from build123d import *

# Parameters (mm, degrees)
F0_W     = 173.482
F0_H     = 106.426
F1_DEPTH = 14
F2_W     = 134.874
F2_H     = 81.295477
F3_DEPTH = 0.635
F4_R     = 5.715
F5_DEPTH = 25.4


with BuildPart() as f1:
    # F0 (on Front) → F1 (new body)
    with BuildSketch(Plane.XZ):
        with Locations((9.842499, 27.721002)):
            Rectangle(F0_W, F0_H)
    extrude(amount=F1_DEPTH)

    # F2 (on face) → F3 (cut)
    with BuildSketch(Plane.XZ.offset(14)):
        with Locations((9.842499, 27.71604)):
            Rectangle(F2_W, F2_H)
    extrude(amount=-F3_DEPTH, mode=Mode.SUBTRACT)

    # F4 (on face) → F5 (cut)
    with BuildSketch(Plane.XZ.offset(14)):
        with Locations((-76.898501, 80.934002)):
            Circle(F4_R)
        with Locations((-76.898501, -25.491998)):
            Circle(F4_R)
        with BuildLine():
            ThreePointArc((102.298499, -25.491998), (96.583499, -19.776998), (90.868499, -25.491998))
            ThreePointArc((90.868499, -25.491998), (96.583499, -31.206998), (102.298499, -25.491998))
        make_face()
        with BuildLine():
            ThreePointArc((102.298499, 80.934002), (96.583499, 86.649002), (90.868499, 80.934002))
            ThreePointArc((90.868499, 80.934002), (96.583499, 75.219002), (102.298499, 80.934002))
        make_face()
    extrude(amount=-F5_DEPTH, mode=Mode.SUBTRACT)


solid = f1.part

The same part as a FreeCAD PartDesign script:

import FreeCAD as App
import Part
import Sketcher

V = App.Vector
Q = App.Units.Quantity


def add_polygon(sketch, points):
    """Adds a closed chain of lines whose ends are joined by coincident constraints."""
    first, n = sketch.GeometryCount, len(points)
    for a, b in zip(points, points[1:] + points[:1]):
        sketch.addGeometry(Part.LineSegment(App.Vector(*a, 0), App.Vector(*b, 0)), False)
    for i in range(n):
        sketch.addConstraint(Sketcher.Constraint("Coincident", first + i, 2, first + (i + 1) % n, 1))

doc = App.newDocument("Part")
params = doc.addObject("Spreadsheet::Sheet", "Params")
for row, (alias, value) in enumerate([
    ("sketch1_width", "6.83 in"),
    ("sketch1_height", "4.19 in"),
    ("pad1_length", "14 mm"),
    ("sketch2_width", "5.31 in"),
    ("pocket1_length", "0.025 in"),
    ("sketch3_diameter", "0.45 in"),
    ("pocket2_length", "1 in"),
], start=1):
    params.set(f"A{row}", alias)
    params.set(f"B{row}", "=" + value)
    params.setAlias(f"B{row}", alias)

body = doc.addObject("PartDesign::Body", "Body")

sketch1 = doc.addObject("Sketcher::SketchObject", "Sketch")
body.addObject(sketch1)
sketch1.AttachmentSupport = (doc.XZ_Plane, [""])
sketch1.MapMode = "FlatFace"
add_polygon(sketch1, [(-77, 81), (-77, -25), (97, -25), (97, 81)])
sketch1.addConstraint(Sketcher.Constraint("Vertical", 0))
sketch1.addConstraint(Sketcher.Constraint("Horizontal", 1))
sketch1.addConstraint(Sketcher.Constraint("Vertical", 2))
sketch1.addConstraint(Sketcher.Constraint("Horizontal", 3))
sketch1.addConstraint(Sketcher.Constraint("DistanceX", 1, 1, 1, 2, Q("6.83 in")))
sketch1.addConstraint(Sketcher.Constraint("DistanceY", 0, 2, 0, 1, Q("4.19 in")))
sketch1.addConstraint(Sketcher.Constraint("DistanceX", 0, 2, -1, 1, Q("3.0275 in")))
sketch1.addConstraint(Sketcher.Constraint("DistanceY", 0, 2, -1, 1, Q("25.491998 mm")))
sketch1.setExpression("Constraints[8]", "Params.sketch1_width")
sketch1.setExpression("Constraints[9]", "Params.sketch1_height")
pad1 = doc.addObject("PartDesign::Pad", "Pad")
body.addObject(pad1)
pad1.Profile = sketch1
pad1.setExpression("Length", "Params.pad1_length")

sketch2 = doc.addObject("Sketcher::SketchObject", "Sketch001")
body.addObject(sketch2)
sketch2.AttachmentSupport = (doc.XZ_Plane, [""])
sketch2.MapMode = "FlatFace"
sketch2.AttachmentOffset = App.Placement(V(0, 0, 14), App.Rotation())
add_polygon(sketch2, [(-58, 68), (-58, -13), (77, -13), (77, 68)])
sketch2.addConstraint(Sketcher.Constraint("Vertical", 0))
sketch2.addConstraint(Sketcher.Constraint("Horizontal", 1))
sketch2.addConstraint(Sketcher.Constraint("Vertical", 2))
sketch2.addConstraint(Sketcher.Constraint("Horizontal", 3))
sketch2.addConstraint(Sketcher.Constraint("DistanceX", 1, 1, 1, 2, Q("5.31 in")))
sketch2.addConstraint(Sketcher.Constraint("DistanceX", 0, 2, -1, 1, Q("2.2675 in")))
sketch2.addConstraint(Sketcher.Constraint("DistanceY", 0, 2, -1, 1, Q("12.931698 mm")))
sketch2.addConstraint(Sketcher.Constraint("DistanceY", 0, 2, 0, 1, Q("81.295477 mm")))
sketch2.setExpression("Constraints[8]", "Params.sketch2_width")
pocket1 = doc.addObject("PartDesign::Pocket", "Pocket")
body.addObject(pocket1)
pocket1.Profile = sketch2
pocket1.setExpression("Length", "Params.pocket1_length")

sketch3 = doc.addObject("Sketcher::SketchObject", "Sketch002")
body.addObject(sketch3)
sketch3.AttachmentSupport = (doc.XZ_Plane, [""])
sketch3.MapMode = "FlatFace"
sketch3.AttachmentOffset = App.Placement(V(0, 0, 14), App.Rotation())
sketch3.addGeometry(Part.Circle(V(-77, 81, 0), V(0, 0, 1), 6), False)
sketch3.addGeometry(Part.Circle(V(-77, -25, 0), V(0, 0, 1), 6), False)
sketch3.addGeometry(Part.Circle(V(97, -25, 0), V(0, 0, 1), 6), False)
sketch3.addGeometry(Part.Circle(V(97, 81, 0), V(0, 0, 1), 6), False)
sketch3.addConstraint(Sketcher.Constraint("Equal", 0, 1))
sketch3.addConstraint(Sketcher.Constraint("Equal", 1, 2))
sketch3.addConstraint(Sketcher.Constraint("Equal", 2, 3))
sketch3.addConstraint(Sketcher.Constraint("Horizontal", 1, 3, 2, 3))
sketch3.addConstraint(Sketcher.Constraint("Horizontal", 0, 3, 3, 3))
sketch3.addConstraint(Sketcher.Constraint("Vertical", 0, 3, 1, 3))
sketch3.addConstraint(Sketcher.Constraint("Vertical", 2, 3, 3, 3))
sketch3.addConstraint(Sketcher.Constraint("Diameter", 0, Q("0.45 in")))
sketch3.addConstraint(Sketcher.Constraint("DistanceY", 1, 3, 0, 3, Q("4.19 in")))
sketch3.addConstraint(Sketcher.Constraint("DistanceX", 1, 3, 2, 3, Q("6.83 in")))
sketch3.addConstraint(Sketcher.Constraint("DistanceX", 0, 3, -1, 1, Q("3.0275 in")))
sketch3.addConstraint(Sketcher.Constraint("DistanceY", -1, 1, 0, 3, Q("80.934002 mm")))
sketch3.setExpression("Constraints[7]", "Params.sketch3_diameter")
pocket2 = doc.addObject("PartDesign::Pocket", "Pocket001")
body.addObject(pocket2)
pocket2.Profile = sketch3
pocket2.setExpression("Length", "Params.pocket2_length")

doc.recompute()
